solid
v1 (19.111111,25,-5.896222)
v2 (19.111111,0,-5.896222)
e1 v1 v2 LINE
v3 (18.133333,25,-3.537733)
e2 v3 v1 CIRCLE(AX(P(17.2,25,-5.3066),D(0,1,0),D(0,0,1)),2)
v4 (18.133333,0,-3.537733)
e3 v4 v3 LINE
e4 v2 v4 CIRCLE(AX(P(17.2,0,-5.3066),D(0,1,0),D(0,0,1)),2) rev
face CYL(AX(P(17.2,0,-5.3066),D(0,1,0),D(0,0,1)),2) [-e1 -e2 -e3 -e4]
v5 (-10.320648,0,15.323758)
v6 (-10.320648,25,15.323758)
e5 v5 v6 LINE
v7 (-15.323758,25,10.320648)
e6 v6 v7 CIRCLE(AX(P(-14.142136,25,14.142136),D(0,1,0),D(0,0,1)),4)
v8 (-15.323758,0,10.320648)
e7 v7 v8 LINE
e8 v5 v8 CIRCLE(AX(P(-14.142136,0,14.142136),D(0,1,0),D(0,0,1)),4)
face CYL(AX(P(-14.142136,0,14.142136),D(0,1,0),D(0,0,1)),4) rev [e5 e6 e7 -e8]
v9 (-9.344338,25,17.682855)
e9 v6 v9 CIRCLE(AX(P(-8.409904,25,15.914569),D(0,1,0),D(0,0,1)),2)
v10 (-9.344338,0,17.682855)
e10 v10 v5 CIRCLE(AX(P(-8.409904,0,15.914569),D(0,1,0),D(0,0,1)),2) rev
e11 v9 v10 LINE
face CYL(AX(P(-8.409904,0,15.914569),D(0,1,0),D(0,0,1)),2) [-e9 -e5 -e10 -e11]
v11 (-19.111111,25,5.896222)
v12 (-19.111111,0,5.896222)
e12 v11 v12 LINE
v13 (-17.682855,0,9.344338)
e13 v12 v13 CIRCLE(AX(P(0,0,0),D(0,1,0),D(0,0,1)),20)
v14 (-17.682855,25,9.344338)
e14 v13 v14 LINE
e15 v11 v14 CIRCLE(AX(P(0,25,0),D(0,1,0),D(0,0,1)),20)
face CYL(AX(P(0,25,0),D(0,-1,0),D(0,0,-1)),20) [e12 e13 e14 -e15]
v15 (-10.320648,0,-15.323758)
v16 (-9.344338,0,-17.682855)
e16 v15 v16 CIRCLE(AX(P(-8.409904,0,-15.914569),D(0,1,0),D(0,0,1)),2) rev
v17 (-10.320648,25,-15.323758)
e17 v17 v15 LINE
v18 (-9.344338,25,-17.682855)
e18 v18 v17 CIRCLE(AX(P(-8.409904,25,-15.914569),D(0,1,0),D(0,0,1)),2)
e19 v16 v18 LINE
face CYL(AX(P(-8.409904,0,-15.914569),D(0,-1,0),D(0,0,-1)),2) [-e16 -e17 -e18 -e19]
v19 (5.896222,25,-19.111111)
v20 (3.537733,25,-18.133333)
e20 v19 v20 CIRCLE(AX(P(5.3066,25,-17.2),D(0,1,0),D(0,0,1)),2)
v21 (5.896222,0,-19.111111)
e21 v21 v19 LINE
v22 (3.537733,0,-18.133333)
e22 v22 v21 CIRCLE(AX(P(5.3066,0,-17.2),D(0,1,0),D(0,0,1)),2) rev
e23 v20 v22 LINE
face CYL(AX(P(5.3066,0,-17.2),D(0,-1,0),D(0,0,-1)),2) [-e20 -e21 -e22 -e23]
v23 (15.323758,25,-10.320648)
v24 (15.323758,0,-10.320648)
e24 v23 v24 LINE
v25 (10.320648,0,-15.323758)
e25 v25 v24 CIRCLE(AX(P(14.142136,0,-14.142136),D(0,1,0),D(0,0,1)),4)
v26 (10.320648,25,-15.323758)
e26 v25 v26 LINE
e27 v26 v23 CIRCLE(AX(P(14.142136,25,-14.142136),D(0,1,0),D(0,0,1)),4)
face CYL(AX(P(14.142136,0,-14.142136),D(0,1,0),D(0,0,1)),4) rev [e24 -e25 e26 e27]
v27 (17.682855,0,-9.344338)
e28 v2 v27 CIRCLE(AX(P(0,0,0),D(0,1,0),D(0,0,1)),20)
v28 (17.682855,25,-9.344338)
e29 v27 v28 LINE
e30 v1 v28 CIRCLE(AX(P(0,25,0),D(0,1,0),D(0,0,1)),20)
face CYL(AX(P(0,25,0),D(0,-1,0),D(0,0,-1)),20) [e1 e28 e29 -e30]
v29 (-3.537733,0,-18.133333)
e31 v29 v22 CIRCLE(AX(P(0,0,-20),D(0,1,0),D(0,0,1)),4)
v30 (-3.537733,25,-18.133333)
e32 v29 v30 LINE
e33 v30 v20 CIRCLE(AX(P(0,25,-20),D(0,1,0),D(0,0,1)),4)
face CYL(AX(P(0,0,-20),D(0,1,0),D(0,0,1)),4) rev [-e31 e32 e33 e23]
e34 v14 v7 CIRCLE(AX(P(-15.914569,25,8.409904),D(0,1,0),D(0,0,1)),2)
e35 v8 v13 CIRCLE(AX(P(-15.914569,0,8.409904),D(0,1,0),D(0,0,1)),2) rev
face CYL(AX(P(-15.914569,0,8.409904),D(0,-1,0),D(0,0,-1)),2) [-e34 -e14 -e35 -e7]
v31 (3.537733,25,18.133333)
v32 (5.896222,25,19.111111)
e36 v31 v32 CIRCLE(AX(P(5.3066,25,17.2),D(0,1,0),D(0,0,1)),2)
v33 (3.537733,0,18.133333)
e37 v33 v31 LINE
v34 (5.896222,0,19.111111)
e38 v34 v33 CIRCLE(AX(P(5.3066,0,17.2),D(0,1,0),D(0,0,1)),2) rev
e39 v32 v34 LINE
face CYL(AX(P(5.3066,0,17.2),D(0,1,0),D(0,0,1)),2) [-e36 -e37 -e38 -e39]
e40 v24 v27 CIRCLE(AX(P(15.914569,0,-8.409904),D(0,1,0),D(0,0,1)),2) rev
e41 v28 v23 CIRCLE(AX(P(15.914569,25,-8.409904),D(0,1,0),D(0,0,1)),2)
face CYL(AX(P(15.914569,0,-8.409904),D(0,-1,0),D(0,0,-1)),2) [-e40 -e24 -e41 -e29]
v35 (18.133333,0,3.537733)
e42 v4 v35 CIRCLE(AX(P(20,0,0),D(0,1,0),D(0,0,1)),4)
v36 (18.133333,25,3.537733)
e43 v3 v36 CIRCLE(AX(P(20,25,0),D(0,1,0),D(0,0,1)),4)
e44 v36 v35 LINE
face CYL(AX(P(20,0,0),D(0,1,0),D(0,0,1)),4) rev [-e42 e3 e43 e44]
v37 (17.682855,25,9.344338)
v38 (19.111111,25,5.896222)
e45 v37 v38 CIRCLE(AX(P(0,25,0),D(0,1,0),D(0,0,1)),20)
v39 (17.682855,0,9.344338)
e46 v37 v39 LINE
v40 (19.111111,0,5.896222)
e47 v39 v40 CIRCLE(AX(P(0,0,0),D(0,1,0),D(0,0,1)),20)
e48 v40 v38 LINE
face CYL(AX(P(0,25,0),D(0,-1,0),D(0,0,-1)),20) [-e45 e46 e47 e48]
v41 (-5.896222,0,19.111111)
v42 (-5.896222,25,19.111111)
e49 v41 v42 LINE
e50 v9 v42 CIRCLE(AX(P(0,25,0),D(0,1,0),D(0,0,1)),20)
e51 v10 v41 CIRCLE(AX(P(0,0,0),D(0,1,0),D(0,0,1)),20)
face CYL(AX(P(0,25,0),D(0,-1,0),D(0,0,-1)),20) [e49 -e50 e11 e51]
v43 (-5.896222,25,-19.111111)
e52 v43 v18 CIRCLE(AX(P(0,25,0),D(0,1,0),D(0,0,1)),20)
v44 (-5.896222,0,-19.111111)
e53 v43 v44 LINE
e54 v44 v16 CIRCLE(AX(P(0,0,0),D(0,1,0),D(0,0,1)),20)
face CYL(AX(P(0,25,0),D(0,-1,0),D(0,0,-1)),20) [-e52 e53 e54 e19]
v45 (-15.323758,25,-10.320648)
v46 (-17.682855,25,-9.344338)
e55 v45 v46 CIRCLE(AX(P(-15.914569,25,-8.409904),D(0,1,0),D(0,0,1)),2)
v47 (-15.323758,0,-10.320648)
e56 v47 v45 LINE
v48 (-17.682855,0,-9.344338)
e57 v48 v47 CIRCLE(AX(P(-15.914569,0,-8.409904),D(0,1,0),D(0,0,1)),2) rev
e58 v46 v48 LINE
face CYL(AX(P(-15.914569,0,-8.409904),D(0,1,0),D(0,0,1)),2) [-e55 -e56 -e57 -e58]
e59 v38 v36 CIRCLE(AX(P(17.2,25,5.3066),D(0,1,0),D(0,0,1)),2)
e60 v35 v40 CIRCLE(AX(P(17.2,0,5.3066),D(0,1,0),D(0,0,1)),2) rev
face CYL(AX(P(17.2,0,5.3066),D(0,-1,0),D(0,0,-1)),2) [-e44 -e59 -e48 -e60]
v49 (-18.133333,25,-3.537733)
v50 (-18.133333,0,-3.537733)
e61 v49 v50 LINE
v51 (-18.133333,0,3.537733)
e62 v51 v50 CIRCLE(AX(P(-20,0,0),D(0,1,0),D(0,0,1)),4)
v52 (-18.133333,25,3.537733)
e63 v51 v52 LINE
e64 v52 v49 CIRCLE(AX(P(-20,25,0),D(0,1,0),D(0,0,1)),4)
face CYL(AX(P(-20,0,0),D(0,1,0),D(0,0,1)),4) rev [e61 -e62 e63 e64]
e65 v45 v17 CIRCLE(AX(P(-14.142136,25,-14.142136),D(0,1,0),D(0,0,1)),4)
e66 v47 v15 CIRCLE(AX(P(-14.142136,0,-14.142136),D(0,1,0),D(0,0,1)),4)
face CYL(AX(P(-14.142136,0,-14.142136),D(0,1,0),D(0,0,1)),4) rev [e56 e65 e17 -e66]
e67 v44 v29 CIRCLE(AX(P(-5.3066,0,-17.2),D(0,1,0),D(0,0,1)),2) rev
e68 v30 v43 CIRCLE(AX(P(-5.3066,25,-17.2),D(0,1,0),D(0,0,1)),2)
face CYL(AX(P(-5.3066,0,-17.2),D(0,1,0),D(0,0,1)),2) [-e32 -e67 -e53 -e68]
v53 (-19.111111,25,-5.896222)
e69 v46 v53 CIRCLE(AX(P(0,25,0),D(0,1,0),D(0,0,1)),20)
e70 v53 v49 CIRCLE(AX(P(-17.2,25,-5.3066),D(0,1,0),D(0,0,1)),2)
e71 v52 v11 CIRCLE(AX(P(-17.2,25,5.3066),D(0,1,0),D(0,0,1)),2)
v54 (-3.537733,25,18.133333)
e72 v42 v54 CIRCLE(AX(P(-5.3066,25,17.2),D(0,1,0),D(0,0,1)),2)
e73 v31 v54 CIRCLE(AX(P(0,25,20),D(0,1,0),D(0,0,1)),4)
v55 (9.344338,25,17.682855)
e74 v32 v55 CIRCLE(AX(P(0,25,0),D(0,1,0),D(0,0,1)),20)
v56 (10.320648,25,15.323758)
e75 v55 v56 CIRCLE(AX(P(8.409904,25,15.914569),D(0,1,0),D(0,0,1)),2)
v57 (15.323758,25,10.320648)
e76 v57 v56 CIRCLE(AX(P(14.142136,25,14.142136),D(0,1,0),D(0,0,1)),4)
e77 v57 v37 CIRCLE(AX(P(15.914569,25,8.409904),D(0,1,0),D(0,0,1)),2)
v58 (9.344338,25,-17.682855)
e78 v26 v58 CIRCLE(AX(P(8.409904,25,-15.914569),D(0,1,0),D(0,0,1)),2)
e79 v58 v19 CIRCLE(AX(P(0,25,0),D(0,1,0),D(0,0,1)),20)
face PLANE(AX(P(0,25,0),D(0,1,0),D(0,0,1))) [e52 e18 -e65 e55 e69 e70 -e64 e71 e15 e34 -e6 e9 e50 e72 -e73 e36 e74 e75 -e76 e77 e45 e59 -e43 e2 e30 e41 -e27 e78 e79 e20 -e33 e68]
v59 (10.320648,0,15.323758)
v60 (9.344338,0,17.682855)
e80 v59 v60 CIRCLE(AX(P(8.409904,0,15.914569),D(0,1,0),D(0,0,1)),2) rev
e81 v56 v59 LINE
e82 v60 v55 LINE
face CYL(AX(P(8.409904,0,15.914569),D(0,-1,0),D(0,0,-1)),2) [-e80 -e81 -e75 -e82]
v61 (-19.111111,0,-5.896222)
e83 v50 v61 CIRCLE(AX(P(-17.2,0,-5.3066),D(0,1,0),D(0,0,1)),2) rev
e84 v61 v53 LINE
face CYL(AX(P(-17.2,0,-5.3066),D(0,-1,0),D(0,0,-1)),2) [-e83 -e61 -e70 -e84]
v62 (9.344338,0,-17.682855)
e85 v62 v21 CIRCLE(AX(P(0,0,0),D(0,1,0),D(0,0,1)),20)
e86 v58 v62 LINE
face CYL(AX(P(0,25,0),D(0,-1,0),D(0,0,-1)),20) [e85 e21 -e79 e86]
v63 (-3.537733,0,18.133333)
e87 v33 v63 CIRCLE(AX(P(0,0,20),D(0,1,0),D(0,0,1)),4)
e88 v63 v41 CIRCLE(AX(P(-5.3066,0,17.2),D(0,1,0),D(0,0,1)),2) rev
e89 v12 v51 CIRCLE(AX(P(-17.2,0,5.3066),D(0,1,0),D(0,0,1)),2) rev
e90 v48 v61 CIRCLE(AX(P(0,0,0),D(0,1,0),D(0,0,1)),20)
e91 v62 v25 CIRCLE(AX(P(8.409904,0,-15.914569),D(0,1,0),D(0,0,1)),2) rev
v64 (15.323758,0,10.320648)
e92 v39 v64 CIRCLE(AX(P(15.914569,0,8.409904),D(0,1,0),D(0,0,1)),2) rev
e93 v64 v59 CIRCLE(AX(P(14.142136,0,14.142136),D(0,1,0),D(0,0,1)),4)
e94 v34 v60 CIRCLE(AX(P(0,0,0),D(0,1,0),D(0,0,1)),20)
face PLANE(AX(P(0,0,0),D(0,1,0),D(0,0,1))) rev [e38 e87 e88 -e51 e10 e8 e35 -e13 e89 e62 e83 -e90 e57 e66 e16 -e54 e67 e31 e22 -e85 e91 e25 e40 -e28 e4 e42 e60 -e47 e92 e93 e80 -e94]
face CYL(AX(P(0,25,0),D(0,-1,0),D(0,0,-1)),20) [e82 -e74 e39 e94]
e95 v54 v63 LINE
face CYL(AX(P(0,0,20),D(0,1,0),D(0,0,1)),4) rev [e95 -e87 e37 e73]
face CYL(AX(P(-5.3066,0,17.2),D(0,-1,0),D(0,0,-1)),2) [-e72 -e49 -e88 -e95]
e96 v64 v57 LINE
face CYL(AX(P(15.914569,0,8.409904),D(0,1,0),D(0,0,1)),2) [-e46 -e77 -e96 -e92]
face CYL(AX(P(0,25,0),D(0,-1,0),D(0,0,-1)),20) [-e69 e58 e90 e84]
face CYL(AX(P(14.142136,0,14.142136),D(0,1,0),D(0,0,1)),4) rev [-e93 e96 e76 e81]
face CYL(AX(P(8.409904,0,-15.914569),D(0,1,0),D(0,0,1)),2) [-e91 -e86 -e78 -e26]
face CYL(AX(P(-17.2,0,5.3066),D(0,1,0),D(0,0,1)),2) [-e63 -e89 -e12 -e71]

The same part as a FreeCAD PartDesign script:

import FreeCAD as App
import Part
import Sketcher
from FreeCAD import Vector


def edges_at(feature, points):
    """Names of the edges that pass closest to the given points."""
    edges = feature.Shape.Edges
    near = lambda p: min(range(len(edges)), key=lambda i: edges[i].distToShape(Part.Vertex(*p))[0])
    return sorted({f"Edge{near(p) + 1}" for p in points})

doc = App.newDocument("Part")
body = doc.addObject("PartDesign::Body", "Body")

sketch1 = body.newObject("Sketcher::SketchObject", "Sketch")
sketch1.AttachmentSupport = (doc.getObject("XZ_Plane"), [""])
sketch1.MapMode = "FlatFace"
sketch1.addGeometry(Part.Circle(Vector(0, 0, 0), Vector(0, 0, 1), 20), False)
sketch1.addConstraint(Sketcher.Constraint("Coincident", 0, 3, -1, 1))
sketch1.addConstraint(Sketcher.Constraint("Diameter", 0, 40.0))
pad1 = body.newObject("PartDesign::Pad", "Pad")
pad1.Profile = sketch1
pad1.Length = 25
pad1.Reversed = True

sketch2 = body.newObject("Sketcher::SketchObject", "Sketch001")
sketch2.AttachmentSupport = (doc.getObject("XZ_Plane"), [""])
sketch2.MapMode = "FlatFace"
sketch2.AttachmentOffset = App.Placement(Vector(0, 0, -25), App.Rotation())
sketch2.addGeometry(Part.Circle(Vector(0, -20, 0), Vector(0, 0, 1), 4), False)
sketch2.addGeometry(Part.Circle(Vector(14.142136, -14.142136, 0), Vector(0, 0, 1), 4), False)
sketch2.addGeometry(Part.Circle(Vector(20, 0, 0), Vector(0, 0, 1), 4), False)
sketch2.addGeometry(Part.Circle(Vector(14.142136, 14.142136, 0), Vector(0, 0, 1), 4), False)
sketch2.addGeometry(Part.Circle(Vector(0, 20, 0), Vector(0, 0, 1), 4), False)
sketch2.addGeometry(Part.Circle(Vector(-14.142136, 14.142136, 0), Vector(0, 0, 1), 4), False)
sketch2.addGeometry(Part.Circle(Vector(-20, 0, 0), Vector(0, 0, 1), 4), False)
sketch2.addGeometry(Part.Circle(Vector(-14.142136, -14.142136, 0), Vector(0, 0, 1), 4), False)
sketch2.addConstraint(Sketcher.Constraint("Equal", 0, 1))
sketch2.addConstraint(Sketcher.Constraint("Equal", 1, 2))
sketch2.addConstraint(Sketcher.Constraint("Equal", 2, 3))
sketch2.addConstraint(Sketcher.Constraint("Equal", 3, 4))
sketch2.addConstraint(Sketcher.Constraint("Equal", 4, 5))
sketch2.addConstraint(Sketcher.Constraint("Equal", 5, 6))
sketch2.addConstraint(Sketcher.Constraint("Equal", 6, 7))
sketch2.addConstraint(Sketcher.Constraint("Symmetric", 0, 3, 4, 3, -1, 1))
sketch2.addConstraint(Sketcher.Constraint("Symmetric", 1, 3, 5, 3, -1, 1))
sketch2.addConstraint(Sketcher.Constraint("Symmetric", 2, 3, 6, 3, -1, 1))
sketch2.addConstraint(Sketcher.Constraint("Symmetric", 3, 3, 7, 3, -1, 1))
sketch2.addConstraint(Sketcher.Constraint("Symmetric", 3, 3, 5, 3, -2))
sketch2.addConstraint(Sketcher.Constraint("PointOnObject", 0, 3, -2))
sketch2.addConstraint(Sketcher.Constraint("PointOnObject", 2, 3, -1))
sketch2.addConstraint(Sketcher.Constraint("Diameter", 0, 8.0))
sketch2.addConstraint(Sketcher.Constraint("DistanceY", 0, 3, -1, 1, 20.0))
sketch2.addConstraint(Sketcher.Constraint("DistanceX", -1, 1, 2, 3, 20.0))
sketch2.addConstraint(Sketcher.Constraint("DistanceY", 1, 3, 3, 3, 28.284271))
sketch2.addConstraint(Sketcher.Constraint("DistanceX", 5, 3, 3, 3, 28.284271))
pocket1 = body.newObject("PartDesign::Pocket", "Pocket")
pocket1.Profile = sketch2
pocket1.Length = 25
pocket1.Reversed = True
doc.recompute()

fillet = body.newObject("PartDesign::Fillet", "Fillet")
fillet.Base = (pocket1, edges_at(pocket1, [
    (16.674, 12.5, -11.045),
    (11.045, 12.5, -16.674),
    (19.6, 12.5, 3.98),
    (19.6, 12.5, -3.98),
    (11.045, 12.5, 16.674),
    (16.674, 12.5, 11.045),
    (-3.98, 12.5, 19.6),
    (3.98, 12.5, 19.6),
    (-16.674, 12.5, 11.045),
    (-11.045, 12.5, 16.674),
    (-19.6, 12.5, -3.98),
    (-19.6, 12.5, 3.98),
    (-11.045, 12.5, -16.674),
    (-16.674, 12.5, -11.045),
    (3.98, 12.5, -19.6),
    (-3.98, 12.5, -19.6),
]))
fillet.Radius = 2

doc.recompute()
